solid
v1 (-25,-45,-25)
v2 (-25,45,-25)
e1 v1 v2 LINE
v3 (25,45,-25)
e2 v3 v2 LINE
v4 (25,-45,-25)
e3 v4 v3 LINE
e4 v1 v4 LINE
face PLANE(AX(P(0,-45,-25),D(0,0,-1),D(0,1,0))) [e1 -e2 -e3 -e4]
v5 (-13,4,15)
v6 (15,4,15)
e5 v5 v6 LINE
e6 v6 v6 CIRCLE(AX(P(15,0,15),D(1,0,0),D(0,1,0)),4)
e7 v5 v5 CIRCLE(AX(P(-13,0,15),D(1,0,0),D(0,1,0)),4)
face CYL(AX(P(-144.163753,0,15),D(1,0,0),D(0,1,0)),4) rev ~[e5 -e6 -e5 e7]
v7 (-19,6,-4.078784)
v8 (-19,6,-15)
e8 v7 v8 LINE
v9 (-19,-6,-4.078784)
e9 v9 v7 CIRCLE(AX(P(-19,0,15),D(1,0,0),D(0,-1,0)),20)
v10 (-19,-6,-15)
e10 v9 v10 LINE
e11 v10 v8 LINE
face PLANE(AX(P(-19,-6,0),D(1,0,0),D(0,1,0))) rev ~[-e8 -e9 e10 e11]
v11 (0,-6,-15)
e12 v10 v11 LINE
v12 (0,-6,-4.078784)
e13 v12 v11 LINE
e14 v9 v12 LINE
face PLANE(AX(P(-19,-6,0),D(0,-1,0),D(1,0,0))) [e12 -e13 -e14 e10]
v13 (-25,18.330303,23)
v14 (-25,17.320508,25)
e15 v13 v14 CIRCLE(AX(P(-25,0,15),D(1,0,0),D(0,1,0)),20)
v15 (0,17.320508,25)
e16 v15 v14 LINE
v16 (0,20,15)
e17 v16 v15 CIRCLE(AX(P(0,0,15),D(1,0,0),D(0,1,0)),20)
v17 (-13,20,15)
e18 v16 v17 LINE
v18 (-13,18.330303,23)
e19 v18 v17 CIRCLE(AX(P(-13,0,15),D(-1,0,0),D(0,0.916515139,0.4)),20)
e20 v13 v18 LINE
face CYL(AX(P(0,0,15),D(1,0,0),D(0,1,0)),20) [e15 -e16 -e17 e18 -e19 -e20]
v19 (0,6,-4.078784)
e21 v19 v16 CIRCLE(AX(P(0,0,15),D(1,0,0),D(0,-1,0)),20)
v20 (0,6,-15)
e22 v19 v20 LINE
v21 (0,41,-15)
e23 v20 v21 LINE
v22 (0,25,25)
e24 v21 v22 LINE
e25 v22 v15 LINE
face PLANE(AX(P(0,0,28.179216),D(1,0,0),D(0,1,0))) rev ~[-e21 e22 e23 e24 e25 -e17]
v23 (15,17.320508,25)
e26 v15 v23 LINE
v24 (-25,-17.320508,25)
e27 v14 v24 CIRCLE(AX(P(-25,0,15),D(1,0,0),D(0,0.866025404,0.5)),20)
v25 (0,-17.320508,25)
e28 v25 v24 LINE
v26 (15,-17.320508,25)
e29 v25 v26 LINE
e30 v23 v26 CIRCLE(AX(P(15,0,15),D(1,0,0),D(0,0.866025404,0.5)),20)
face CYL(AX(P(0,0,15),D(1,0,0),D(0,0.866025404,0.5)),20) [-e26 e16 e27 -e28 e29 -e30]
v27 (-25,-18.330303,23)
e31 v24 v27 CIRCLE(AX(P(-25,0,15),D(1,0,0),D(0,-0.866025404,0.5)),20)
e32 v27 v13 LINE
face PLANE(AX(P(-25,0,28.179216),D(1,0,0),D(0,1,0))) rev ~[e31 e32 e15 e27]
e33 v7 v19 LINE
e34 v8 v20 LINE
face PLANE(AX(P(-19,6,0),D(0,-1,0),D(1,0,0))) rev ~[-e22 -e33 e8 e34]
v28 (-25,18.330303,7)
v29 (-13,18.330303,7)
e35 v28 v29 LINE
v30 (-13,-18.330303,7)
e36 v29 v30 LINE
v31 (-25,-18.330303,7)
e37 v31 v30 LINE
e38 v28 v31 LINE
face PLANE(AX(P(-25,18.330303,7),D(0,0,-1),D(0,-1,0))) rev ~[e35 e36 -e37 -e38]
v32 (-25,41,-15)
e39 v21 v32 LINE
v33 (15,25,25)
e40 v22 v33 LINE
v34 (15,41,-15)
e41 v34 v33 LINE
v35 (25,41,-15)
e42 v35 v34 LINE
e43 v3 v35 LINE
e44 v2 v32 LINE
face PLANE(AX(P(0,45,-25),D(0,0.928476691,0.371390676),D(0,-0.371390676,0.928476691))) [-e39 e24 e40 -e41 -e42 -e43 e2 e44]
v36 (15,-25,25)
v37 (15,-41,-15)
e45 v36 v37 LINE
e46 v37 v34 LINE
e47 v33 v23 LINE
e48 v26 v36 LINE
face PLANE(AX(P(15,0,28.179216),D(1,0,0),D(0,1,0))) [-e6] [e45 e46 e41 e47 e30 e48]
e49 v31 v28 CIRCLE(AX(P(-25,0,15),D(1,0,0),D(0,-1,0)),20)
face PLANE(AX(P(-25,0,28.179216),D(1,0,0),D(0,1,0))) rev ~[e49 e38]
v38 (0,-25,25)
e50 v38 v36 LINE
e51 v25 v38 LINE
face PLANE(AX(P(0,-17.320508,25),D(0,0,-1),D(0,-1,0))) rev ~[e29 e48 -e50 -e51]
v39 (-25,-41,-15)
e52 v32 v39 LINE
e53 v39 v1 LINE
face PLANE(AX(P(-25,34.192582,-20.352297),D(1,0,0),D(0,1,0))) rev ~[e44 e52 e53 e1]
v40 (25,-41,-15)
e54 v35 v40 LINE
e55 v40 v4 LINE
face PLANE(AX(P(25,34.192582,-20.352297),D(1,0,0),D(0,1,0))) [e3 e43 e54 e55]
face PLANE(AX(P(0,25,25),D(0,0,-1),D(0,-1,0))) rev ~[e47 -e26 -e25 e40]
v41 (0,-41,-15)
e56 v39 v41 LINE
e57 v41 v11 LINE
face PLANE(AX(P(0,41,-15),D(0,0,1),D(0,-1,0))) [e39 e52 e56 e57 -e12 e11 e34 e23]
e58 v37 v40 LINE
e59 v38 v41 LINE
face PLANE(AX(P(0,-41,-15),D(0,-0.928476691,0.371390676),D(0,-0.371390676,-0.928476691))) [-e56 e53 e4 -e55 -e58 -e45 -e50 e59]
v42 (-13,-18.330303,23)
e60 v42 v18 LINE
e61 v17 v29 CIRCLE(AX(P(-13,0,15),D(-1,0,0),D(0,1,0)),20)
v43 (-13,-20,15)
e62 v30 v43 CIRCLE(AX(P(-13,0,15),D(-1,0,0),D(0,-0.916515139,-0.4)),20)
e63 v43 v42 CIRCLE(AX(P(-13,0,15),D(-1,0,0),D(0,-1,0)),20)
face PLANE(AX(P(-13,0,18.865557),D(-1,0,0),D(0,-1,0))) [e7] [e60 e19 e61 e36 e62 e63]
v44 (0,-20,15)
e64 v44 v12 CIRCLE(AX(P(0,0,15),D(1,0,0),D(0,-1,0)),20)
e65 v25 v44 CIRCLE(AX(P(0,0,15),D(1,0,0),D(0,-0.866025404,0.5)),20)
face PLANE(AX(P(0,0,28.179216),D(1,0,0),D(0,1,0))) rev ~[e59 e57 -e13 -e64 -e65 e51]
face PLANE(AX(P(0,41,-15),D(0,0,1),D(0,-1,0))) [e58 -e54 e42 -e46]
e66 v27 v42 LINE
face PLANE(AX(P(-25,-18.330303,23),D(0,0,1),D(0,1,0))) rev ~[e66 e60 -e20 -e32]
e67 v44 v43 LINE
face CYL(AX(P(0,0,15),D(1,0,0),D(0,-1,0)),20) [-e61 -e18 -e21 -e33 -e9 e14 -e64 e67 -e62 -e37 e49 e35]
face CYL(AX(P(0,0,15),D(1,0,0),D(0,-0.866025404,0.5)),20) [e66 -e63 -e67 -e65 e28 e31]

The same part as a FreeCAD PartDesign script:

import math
import FreeCAD as App
import Part
import Sketcher


def add_polygon(sketch, points):
    """Adds a closed chain of lines whose ends are joined by coincident constraints."""
    first, n = sketch.GeometryCount, len(points)
    for a, b in zip(points, points[1:] + points[:1]):
        sketch.addGeometry(Part.LineSegment(App.Vector(*a, 0), App.Vector(*b, 0)), False)
    for i in range(n):
        sketch.addConstraint(Sketcher.Constraint("Coincident", first + i, 2, first + (i + 1) % n, 1))

doc = App.newDocument("Part")
body = doc.addObject("PartDesign::Body", "Body")

# Sketch on YZ plane
sketch1 = body.newObject("Sketcher::SketchObject", "Sketch")
sketch1.AttachmentSupport = (doc.getObject("YZ_Plane"), [""])
sketch1.MapMode = "FlatFace"
add_polygon(sketch1, [(41, -15), (-41, -15), (-45, -25), (45, -25)])  # lines 0-3
sketch1.addConstraint(Sketcher.Constraint("Horizontal", 0))
sketch1.addConstraint(Sketcher.Constraint("Horizontal", 2))
sketch1.addConstraint(Sketcher.Constraint("Equal", 1, 3))
sketch1.addConstraint(Sketcher.Constraint("DistanceX", 0, 2, 0, 1, 82.0))
sketch1.addConstraint(Sketcher.Constraint("DistanceX", 2, 1, 2, 2, 90.0))
sketch1.addConstraint(Sketcher.Constraint("DistanceX", 0, 2, -1, 1, 41.0))
sketch1.addConstraint(Sketcher.Constraint("DistanceY", 0, 2, -1, 1, 15.0))
sketch1.addConstraint(Sketcher.Constraint("DistanceY", 1, 2, -1, 1, 25.0))
pad1 = body.newObject("PartDesign::Pad", "Pad")
pad1.Profile = sketch1
pad1.Length = 50
pad1.Midplane = True

# Sketch on YZ plane
sketch2 = body.newObject("Sketcher::SketchObject", "Sketch001")
sketch2.AttachmentSupport = (doc.getObject("YZ_Plane"), [""])
sketch2.MapMode = "FlatFace"
sketch2.addGeometry(Part.LineSegment(App.Vector(-25, 25, 0), App.Vector(-41, -15, 0)), False)
sketch2.addGeometry(Part.LineSegment(App.Vector(-41, -15, 0), App.Vector(41, -15, 0)), False)
sketch2.addGeometry(Part.LineSegment(App.Vector(41, -15, 0), App.Vector(25, 25, 0)), False)
sketch2.addGeometry(Part.LineSegment(App.Vector(25, 25, 0), App.Vector(17, 25, 0)), False)
sketch2.addGeometry(Part.ArcOfCircle(Part.Circle(App.Vector(0, 15, 0), App.Vector(0, 0, 1), 20), math.radians(0), math.radians(30)), False)
sketch2.addGeometry(Part.ArcOfCircle(Part.Circle(App.Vector(0, 15, 0), App.Vector(0, 0, 1), 20), math.radians(180), math.radians(360)), False)
sketch2.addGeometry(Part.ArcOfCircle(Part.Circle(App.Vector(0, 15, 0), App.Vector(0, 0, 1), 20), math.radians(150), math.radians(180)), False)
sketch2.addGeometry(Part.LineSegment(App.Vector(-17, 25, 0), App.Vector(-25, 25, 0)), False)
sketch2.addConstraint(Sketcher.Constraint("Coincident", 0, 2, 1, 1))
sketch2.addConstraint(Sketcher.Constraint("Coincident", 1, 2, 2, 1))
sketch2.addConstraint(Sketcher.Constraint("Coincident", 2, 2, 3, 1))
sketch2.addConstraint(Sketcher.Constraint("Coincident", 3, 2, 4, 2))
sketch2.addConstraint(Sketcher.Constraint("Tangent", 4, 1, 5, 2))
sketch2.addConstraint(Sketcher.Constraint("Tangent", 5, 1, 6, 2))
sketch2.addConstraint(Sketcher.Constraint("Coincident", 6, 1, 7, 1))
sketch2.addConstraint(Sketcher.Constraint("Coincident", 7, 2, 0, 1))
sketch2.addConstraint(Sketcher.Constraint("Horizontal", 1))
sketch2.addConstraint(Sketcher.Constraint("Horizontal", 3))
sketch2.addConstraint(Sketcher.Constraint("Horizontal", 7))
sketch2.addConstraint(Sketcher.Constraint("Equal", 4, 5))
sketch2.addConstraint(Sketcher.Constraint("Equal", 5, 6))
sketch2.addConstraint(Sketcher.Constraint("Symmetric", 4, 1, 5, 1, -2))
sketch2.addConstraint(Sketcher.Constraint("Symmetric", 2, 2, 7, 2, -2))
sketch2.addConstraint(Sketcher.Constraint("Horizontal", 6, 3, 4, 1))
sketch2.addConstraint(Sketcher.Constraint("Equal", 0, 2))
sketch2.addConstraint(Sketcher.Constraint("Radius", 4, 20.0))
sketch2.addConstraint(Sketcher.Constraint("DistanceX", 1, 1, 1, 2, 82.0))
sketch2.addConstraint(Sketcher.Constraint("DistanceY", -1, 1, 4, 3, 15.0))
sketch2.addConstraint(Sketcher.Constraint("DistanceY", 0, 2, -1, 1, 15.0))
sketch2.addConstraint(Sketcher.Constraint("DistanceX", -1, 1, 2, 2, 25.0))
sketch2.addConstraint(Sketcher.Constraint("DistanceY", -1, 1, 2, 2, 25.0))
pad2 = body.newObject("PartDesign::Pad", "Pad001")
pad2.Profile = sketch2
pad2.Length = 15

# Sketch on YZ plane
sketch3 = body.newObject("Sketcher::SketchObject", "Sketch002")
sketch3.AttachmentSupport = (doc.getObject("YZ_Plane"), [""])
sketch3.MapMode = "FlatFace"
sketch3.addGeometry(Part.ArcOfCircle(Part.Circle(App.Vector(0, 15, 0), App.Vector(0, 0, 1), 20), math.radians(30), math.radians(150)), False)
sketch3.addGeometry(Part.ArcOfCircle(Part.Circle(App.Vector(0, 15, 0), App.Vector(0, 0, 1), 20), math.radians(150), math.radians(180)), False)
sketch3.addGeometry(Part.ArcOfCircle(Part.Circle(App.Vector(0, 15, 0), App.Vector(0, 0, 1), 20), math.radians(180), math.radians(360)), False)
sketch3.addGeometry(Part.ArcOfCircle(Part.Circle(App.Vector(0, 15, 0), App.Vector(0, 0, 1), 20), math.radians(0), math.radians(30)), False)
sketch3.addConstraint(Sketcher.Constraint("Tangent", 0, 2, 1, 1))
sketch3.addConstraint(Sketcher.Constraint("Tangent", 1, 2, 2, 1))
sketch3.addConstraint(Sketcher.Constraint("Tangent", 2, 2, 3, 1))
sketch3.addConstraint(Sketcher.Constraint("Tangent", 3, 2, 0, 1))
sketch3.addConstraint(Sketcher.Constraint("Equal", 0, 1))
sketch3.addConstraint(Sketcher.Constraint("Symmetric", 1, 2, 2, 2, -2))
sketch3.addConstraint(Sketcher.Constraint("Horizontal", 3, 3, 1, 2))
sketch3.addConstraint(Sketcher.Constraint("Horizontal", 0, 2, 3, 2))
sketch3.addConstraint(Sketcher.Constraint("Radius", 0, 20.0))
sketch3.addConstraint(Sketcher.Constraint("DistanceY", -1, 1, 0, 3, 15.0))
sketch3.addConstraint(Sketcher.Constraint("DistanceY", -1, 1, 0, 2, 25.0))
pad3 = body.newObject("PartDesign::Pad", "Pad002")
pad3.Profile = sketch3
pad3.Type = "TwoLengths"
pad3.Length = 15
pad3.Length2 = 25

# Sketch on YZ plane
sketch4 = body.newObject("Sketcher::SketchObject", "Sketch003")
sketch4.AttachmentSupport = (doc.getObject("YZ_Plane"), [""])
sketch4.MapMode = "FlatFace"
sketch4.AttachmentOffset = App.Placement(App.Vector(0, 0, -25), App.Rotation())
sketch4.addGeometry(Part.ArcOfCircle(Part.Circle(App.Vector(0, 15, 0), App.Vector(0, 0, 1), 20), math.radians(156), math.radians(180)), False)
sketch4.addGeometry(Part.LineSegment(App.Vector(-18, 23, 0), App.Vector(18, 23, 0)), False)
sketch4.addGeometry(Part.ArcOfCircle(Part.Circle(App.Vector(0, 15, 0), App.Vector(0, 0, 1), 20), math.radians(0), math.radians(24)), False)
sketch4.addGeometry(Part.ArcOfCircle(Part.Circle(App.Vector(0, 15, 0), App.Vector(0, 0, 1), 20), math.radians(-24), math.radians(0)), False)
sketch4.addGeometry(Part.LineSegment(App.Vector(18, 7, 0), App.Vector(-18, 7, 0)), False)
sketch4.addGeometry(Part.ArcOfCircle(Part.Circle(App.Vector(0, 15, 0), App.Vector(0, 0, 1), 20), math.radians(180), math.radians(204)), False)
sketch4.addConstraint(Sketcher.Constraint("Coincident", 0, 1, 1, 1))
sketch4.addConstraint(Sketcher.Constraint("Coincident", 1, 2, 2, 2))
sketch4.addConstraint(Sketcher.Constraint("Tangent", 2, 1, 3, 2))
sketch4.addConstraint(Sketcher.Constraint("Coincident", 3, 1, 4, 1))
sketch4.addConstraint(Sketcher.Constraint("Coincident", 4, 2, 5, 2))
sketch4.addConstraint(Sketcher.Constraint("Tangent", 5, 1, 0, 2))
sketch4.addConstraint(Sketcher.Constraint("Horizontal", 1))
sketch4.addConstraint(Sketcher.Constraint("Horizontal", 4))
sketch4.addConstraint(Sketcher.Constraint("Coincident", 2, 3, 0, 3))
sketch4.addConstraint(Sketcher.Constraint("Equal", 0, 2))
sketch4.addConstraint(Sketcher.Constraint("Equal", 2, 3))
sketch4.addConstraint(Sketcher.Constraint("Equal", 3, 5))
sketch4.addConstraint(Sketcher.Constraint("Symmetric", 2, 1, 5, 1, -2))
sketch4.addConstraint(Sketcher.Constraint("Horizontal", 5, 3, 2, 1))
sketch4.addConstraint(Sketcher.Constraint("Vertical", 1, 2, 3, 1))
sketch4.addConstraint(Sketcher.Constraint("Radius", 0, 20.0))
sketch4.addConstraint(Sketcher.Constraint("DistanceY", -1, 1, 0, 3, 15.0))
sketch4.addConstraint(Sketcher.Constraint("DistanceY", -1, 1, 0, 1, 23.0))
pocket1 = body.newObject("PartDesign::Pocket", "Pocket")
pocket1.Profile = sketch4
pocket1.Length = 12
pocket1.Reversed = True

# Sketch on YZ plane
sketch5 = body.newObject("Sketcher::SketchObject", "Sketch004")
sketch5.AttachmentSupport = (doc.getObject("YZ_Plane"), [""])
sketch5.MapMode = "FlatFace"
sketch5.AttachmentOffset = App.Placement(App.Vector(0, 0, -25), App.Rotation())
sketch5.addGeometry(Part.Circle(App.Vector(0, 15, 0), App.Vector(0, 0, 1), 4), False)
sketch5.addConstraint(Sketcher.Constraint("PointOnObject", 0, 3, -2))
sketch5.addConstraint(Sketcher.Constraint("Diameter", 0, 8.0))
sketch5.addConstraint(Sketcher.Constraint("DistanceY", -1, 1, 0, 3, 15.0))
doc.recompute()
hole = body.newObject("PartDesign::Hole", "Hole")
hole.Profile = sketch5
hole.ThreadType = "None"
hole.Diameter = 8
hole.DepthType = "ThroughAll"
hole.Reversed = True

# Sketch on XY plane
sketch6 = body.newObject("Sketcher::SketchObject", "Sketch005")
sketch6.AttachmentSupport = (doc.getObject("XY_Plane"), [""])
sketch6.MapMode = "FlatFace"
add_polygon(sketch6, [(-19, 6), (-19, -6), (0, -6), (0, 6)])  # lines 0-3
sketch6.addConstraint(Sketcher.Constraint("Vertical", 0))
sketch6.addConstraint(Sketcher.Constraint("Horizontal", 1))
sketch6.addConstraint(Sketcher.Constraint("Vertical", 2))
sketch6.addConstraint(Sketcher.Constraint("Horizontal", 3))
sketch6.addConstraint(Sketcher.Constraint("Symmetric", 1, 2, 2, 2, -1, 1))
sketch6.addConstraint(Sketcher.Constraint("DistanceX", 1, 1, 1, 2, 19.0))
sketch6.addConstraint(Sketcher.Constraint("DistanceY", 0, 2, 0, 1, 12.0))
pad4 = body.newObject("PartDesign::Pad", "Pad003")
pad4.Profile = sketch6
pad4.Length = 25
pad4.Reversed = True

doc.recompute()
